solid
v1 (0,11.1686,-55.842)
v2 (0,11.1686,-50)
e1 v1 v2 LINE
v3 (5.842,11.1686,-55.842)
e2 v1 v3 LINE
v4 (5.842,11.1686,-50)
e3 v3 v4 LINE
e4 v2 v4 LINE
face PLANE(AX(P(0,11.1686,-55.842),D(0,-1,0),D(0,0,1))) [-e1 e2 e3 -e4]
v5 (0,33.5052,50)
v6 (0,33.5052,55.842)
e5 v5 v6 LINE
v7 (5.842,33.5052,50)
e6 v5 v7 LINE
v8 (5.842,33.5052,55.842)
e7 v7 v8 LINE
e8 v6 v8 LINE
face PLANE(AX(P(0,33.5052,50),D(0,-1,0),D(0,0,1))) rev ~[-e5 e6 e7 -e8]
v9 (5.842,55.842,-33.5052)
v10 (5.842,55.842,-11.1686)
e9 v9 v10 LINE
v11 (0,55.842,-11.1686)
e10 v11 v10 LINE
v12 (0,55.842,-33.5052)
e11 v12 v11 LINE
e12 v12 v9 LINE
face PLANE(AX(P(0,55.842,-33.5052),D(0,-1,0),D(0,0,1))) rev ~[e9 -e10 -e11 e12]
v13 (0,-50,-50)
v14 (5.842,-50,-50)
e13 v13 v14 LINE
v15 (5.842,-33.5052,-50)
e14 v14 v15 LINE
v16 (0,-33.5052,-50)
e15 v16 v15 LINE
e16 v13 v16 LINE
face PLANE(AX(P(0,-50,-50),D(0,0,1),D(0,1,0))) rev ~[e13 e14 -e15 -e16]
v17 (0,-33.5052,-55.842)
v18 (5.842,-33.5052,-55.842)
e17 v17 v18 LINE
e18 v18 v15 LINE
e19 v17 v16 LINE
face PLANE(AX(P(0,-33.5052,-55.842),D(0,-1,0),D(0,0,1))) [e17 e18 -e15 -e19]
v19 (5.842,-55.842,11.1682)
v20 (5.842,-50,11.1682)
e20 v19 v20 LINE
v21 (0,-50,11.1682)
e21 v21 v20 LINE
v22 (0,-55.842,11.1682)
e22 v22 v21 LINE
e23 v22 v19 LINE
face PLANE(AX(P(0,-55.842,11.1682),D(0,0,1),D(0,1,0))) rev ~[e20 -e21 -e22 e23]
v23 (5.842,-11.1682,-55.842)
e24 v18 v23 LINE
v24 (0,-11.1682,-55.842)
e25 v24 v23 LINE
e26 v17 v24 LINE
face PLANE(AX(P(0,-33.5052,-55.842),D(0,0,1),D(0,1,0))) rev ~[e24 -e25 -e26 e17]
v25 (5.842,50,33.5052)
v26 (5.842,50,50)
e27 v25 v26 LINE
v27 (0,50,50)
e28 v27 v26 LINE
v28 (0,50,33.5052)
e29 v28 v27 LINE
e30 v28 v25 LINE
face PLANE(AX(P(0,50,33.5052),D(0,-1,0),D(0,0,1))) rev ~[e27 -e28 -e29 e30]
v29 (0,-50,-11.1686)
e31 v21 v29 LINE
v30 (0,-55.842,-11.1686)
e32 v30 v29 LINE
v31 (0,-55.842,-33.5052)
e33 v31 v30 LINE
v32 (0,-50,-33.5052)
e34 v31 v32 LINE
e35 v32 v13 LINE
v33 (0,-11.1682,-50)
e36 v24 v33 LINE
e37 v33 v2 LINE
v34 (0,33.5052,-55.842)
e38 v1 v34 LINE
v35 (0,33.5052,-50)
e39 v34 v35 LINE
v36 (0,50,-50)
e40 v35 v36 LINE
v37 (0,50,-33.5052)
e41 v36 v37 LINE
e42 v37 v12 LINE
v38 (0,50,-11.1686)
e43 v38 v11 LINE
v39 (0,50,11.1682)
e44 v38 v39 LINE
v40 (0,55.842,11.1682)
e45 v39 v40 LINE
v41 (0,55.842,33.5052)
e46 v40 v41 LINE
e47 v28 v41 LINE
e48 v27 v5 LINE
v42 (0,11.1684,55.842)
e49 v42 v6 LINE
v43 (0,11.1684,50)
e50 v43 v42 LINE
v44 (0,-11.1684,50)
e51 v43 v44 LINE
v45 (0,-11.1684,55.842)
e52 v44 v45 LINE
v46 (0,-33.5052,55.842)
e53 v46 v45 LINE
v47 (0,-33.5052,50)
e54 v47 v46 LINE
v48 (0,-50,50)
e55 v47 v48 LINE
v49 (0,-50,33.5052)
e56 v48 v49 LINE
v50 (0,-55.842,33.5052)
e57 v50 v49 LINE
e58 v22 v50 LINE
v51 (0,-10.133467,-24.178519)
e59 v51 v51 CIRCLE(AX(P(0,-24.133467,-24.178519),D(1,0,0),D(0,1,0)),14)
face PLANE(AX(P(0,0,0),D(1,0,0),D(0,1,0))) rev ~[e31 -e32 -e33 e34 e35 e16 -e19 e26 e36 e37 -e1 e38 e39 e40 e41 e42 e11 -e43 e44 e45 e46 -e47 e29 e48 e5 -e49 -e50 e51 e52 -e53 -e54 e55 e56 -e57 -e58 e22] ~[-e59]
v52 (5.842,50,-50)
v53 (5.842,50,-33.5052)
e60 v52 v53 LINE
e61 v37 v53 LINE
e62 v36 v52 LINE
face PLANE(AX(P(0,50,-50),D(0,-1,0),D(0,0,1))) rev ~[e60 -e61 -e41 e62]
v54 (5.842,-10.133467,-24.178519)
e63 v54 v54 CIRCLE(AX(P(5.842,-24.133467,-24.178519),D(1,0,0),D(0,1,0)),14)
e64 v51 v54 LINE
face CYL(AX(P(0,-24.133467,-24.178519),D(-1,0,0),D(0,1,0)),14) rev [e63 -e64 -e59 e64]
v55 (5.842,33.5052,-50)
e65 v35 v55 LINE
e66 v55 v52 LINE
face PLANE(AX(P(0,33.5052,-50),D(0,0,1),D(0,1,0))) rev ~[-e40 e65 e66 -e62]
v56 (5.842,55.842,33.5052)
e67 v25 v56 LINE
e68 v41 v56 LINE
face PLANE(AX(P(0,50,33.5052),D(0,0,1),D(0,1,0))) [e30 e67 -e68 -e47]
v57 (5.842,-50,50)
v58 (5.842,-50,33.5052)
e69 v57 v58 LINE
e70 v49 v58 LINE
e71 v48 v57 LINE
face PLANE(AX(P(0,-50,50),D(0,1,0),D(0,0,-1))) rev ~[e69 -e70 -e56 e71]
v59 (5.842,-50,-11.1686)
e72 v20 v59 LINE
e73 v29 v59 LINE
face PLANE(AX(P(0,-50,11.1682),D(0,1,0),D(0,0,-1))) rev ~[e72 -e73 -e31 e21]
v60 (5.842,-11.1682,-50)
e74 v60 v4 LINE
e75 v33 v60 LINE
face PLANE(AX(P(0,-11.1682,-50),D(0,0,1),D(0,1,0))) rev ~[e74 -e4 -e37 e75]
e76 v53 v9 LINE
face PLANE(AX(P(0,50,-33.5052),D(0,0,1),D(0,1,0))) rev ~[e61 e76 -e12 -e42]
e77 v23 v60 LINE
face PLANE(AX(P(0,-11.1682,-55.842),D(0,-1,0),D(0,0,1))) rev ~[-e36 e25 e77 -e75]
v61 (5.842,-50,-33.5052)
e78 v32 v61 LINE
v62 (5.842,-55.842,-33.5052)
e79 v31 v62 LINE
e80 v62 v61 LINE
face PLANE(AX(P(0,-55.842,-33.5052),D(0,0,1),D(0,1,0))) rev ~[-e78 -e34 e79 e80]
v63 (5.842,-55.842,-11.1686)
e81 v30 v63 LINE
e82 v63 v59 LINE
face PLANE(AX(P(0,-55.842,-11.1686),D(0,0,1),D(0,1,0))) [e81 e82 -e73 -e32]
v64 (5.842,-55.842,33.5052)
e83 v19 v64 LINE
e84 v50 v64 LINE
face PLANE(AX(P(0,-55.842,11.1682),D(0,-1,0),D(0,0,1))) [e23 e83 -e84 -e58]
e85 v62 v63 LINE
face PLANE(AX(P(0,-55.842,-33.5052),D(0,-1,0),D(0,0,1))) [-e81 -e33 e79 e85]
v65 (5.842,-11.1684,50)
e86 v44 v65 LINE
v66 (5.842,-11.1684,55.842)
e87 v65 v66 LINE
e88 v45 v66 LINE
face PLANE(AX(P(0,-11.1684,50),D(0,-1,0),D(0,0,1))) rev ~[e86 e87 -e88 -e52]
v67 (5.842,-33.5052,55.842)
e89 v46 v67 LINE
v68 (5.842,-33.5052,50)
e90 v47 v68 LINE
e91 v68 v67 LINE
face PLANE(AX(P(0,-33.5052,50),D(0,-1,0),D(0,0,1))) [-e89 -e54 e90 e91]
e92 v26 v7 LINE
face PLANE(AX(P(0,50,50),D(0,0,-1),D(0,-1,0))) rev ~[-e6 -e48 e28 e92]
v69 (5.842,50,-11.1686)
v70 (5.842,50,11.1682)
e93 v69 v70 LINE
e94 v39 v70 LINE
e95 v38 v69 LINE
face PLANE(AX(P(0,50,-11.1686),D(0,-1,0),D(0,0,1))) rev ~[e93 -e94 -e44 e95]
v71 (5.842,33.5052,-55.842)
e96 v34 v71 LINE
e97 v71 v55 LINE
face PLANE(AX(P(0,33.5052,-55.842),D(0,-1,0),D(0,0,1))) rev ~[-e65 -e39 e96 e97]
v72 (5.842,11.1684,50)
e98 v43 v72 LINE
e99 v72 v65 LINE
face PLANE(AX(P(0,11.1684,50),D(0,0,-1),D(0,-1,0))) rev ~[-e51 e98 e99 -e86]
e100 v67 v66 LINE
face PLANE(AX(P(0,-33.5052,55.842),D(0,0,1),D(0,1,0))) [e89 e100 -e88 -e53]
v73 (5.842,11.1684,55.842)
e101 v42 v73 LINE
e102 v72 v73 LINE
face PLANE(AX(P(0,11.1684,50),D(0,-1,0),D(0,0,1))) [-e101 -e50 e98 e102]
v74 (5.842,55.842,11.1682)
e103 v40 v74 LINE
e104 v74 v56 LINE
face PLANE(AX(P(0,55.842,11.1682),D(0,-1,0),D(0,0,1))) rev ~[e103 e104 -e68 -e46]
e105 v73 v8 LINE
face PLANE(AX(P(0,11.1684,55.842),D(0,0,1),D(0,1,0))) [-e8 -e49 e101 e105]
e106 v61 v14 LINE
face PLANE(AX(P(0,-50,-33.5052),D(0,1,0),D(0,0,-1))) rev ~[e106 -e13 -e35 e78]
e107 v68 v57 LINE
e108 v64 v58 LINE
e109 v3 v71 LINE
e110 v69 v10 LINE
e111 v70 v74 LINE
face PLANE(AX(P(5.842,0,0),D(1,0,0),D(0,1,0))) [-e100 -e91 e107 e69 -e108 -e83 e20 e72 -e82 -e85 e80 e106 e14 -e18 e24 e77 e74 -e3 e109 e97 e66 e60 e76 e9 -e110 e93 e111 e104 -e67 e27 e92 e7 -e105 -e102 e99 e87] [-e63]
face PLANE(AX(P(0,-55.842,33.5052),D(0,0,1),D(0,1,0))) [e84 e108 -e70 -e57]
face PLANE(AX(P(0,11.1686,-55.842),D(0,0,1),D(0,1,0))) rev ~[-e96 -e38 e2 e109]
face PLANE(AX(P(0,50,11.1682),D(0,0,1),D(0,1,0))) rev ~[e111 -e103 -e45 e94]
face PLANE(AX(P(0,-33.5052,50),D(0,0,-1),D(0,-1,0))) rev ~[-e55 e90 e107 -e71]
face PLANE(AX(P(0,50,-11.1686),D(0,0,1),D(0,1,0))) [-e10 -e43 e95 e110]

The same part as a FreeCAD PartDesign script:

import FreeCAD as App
import Part
import Sketcher
Q = App.Units.Quantity

doc = App.newDocument("Part")
body = doc.addObject("PartDesign::Body", "Body")

# Sketch on YZ plane
sketch1 = body.newObject("Sketcher::SketchObject", "Sketch")
sketch1.AttachmentSupport = (doc.getObject("YZ_Plane"), [""])
sketch1.MapMode = "FlatFace"
sketch1.addGeometry([
    Part.LineSegment(App.Vector(-50, 50, 0), App.Vector(-50, 34, 0)),  # 0
    Part.LineSegment(App.Vector(-50, 34, 0), App.Vector(-56, 34, 0)),  # 1
    Part.LineSegment(App.Vector(-56, 34, 0), App.Vector(-56, 11, 0)),  # 2
    Part.LineSegment(App.Vector(-56, 11, 0), App.Vector(-50, 11, 0)),  # 3
    Part.LineSegment(App.Vector(-50, 11, 0), App.Vector(-50, -11, 0)),  # 4
    Part.LineSegment(App.Vector(-50, -11, 0), App.Vector(-56, -11, 0)),  # 5
    Part.LineSegment(App.Vector(-56, -11, 0), App.Vector(-56, -34, 0)),  # 6
    Part.LineSegment(App.Vector(-56, -34, 0), App.Vector(-50, -34, 0)),  # 7
    Part.LineSegment(App.Vector(-50, -34, 0), App.Vector(-50, -50, 0)),  # 8
    Part.LineSegment(App.Vector(-50, -50, 0), App.Vector(-34, -50, 0)),  # 9
    Part.LineSegment(App.Vector(-34, -50, 0), App.Vector(-34, -56, 0)),  # 10
    Part.LineSegment(App.Vector(-34, -56, 0), App.Vector(-11, -56, 0)),  # 11
    Part.LineSegment(App.Vector(-11, -56, 0), App.Vector(-11, -50, 0)),  # 12
    Part.LineSegment(App.Vector(-11, -50, 0), App.Vector(11, -50, 0)),  # 13
    Part.LineSegment(App.Vector(11, -50, 0), App.Vector(11, -56, 0)),  # 14
    Part.LineSegment(App.Vector(11, -56, 0), App.Vector(34, -56, 0)),  # 15
    Part.LineSegment(App.Vector(34, -56, 0), App.Vector(34, -50, 0)),  # 16
    Part.LineSegment(App.Vector(34, -50, 0), App.Vector(50, -50, 0)),  # 17
    Part.LineSegment(App.Vector(50, -50, 0), App.Vector(50, -34, 0)),  # 18
    Part.LineSegment(App.Vector(50, -34, 0), App.Vector(56, -34, 0)),  # 19
    Part.LineSegment(App.Vector(56, -34, 0), App.Vector(56, -11, 0)),  # 20
    Part.LineSegment(App.Vector(56, -11, 0), App.Vector(50, -11, 0)),  # 21
    Part.LineSegment(App.Vector(50, -11, 0), App.Vector(50, 11, 0)),  # 22
    Part.LineSegment(App.Vector(50, 11, 0), App.Vector(56, 11, 0)),  # 23
    Part.LineSegment(App.Vector(56, 11, 0), App.Vector(56, 34, 0)),  # 24
    Part.LineSegment(App.Vector(56, 34, 0), App.Vector(50, 34, 0)),  # 25
    Part.LineSegment(App.Vector(50, 34, 0), App.Vector(50, 50, 0)),  # 26
    Part.LineSegment(App.Vector(50, 50, 0), App.Vector(34, 50, 0)),  # 27
    Part.LineSegment(App.Vector(34, 50, 0), App.Vector(34, 56, 0)),  # 28
    Part.LineSegment(App.Vector(34, 56, 0), App.Vector(11, 56, 0)),  # 29
    Part.LineSegment(App.Vector(11, 56, 0), App.Vector(11, 50, 0)),  # 30
    Part.LineSegment(App.Vector(11, 50, 0), App.Vector(-11, 50, 0)),  # 31
    Part.LineSegment(App.Vector(-11, 50, 0), App.Vector(-11, 56, 0)),  # 32
    Part.LineSegment(App.Vector(-11, 56, 0), App.Vector(-34, 56, 0)),  # 33
    Part.LineSegment(App.Vector(-34, 56, 0), App.Vector(-34, 50, 0)),  # 34
    Part.LineSegment(App.Vector(-34, 50, 0), App.Vector(-50, 50, 0)),  # 35
    Part.Circle(App.Vector(-24, -24, 0), App.Vector(0, 0, 1), 14),  # 36
], False)
sketch1.addConstraint([
    Sketcher.Constraint("Coincident", 0, 2, 1, 1),
    Sketcher.Constraint("Coincident", 1, 2, 2, 1),
    Sketcher.Constraint("Coincident", 2, 2, 3, 1),
    Sketcher.Constraint("Coincident", 3, 2, 4, 1),
    Sketcher.Constraint("Coincident", 4, 2, 5, 1),
    Sketcher.Constraint("Coincident", 5, 2, 6, 1),
    Sketcher.Constraint("Coincident", 6, 2, 7, 1),
    Sketcher.Constraint("Coincident", 7, 2, 8, 1),
    Sketcher.Constraint("Coincident", 8, 2, 9, 1),
    Sketcher.Constraint("Coincident", 9, 2, 10, 1),
    Sketcher.Constraint("Coincident", 10, 2, 11, 1),
    Sketcher.Constraint("Coincident", 11, 2, 12, 1),
    Sketcher.Constraint("Coincident", 12, 2, 13, 1),
    Sketcher.Constraint("Coincident", 13, 2, 14, 1),
    Sketcher.Constraint("Coincident", 14, 2, 15, 1),
    Sketcher.Constraint("Coincident", 15, 2, 16, 1),
    Sketcher.Constraint("Coincident", 16, 2, 17, 1),
    Sketcher.Constraint("Coincident", 17, 2, 18, 1),
    Sketcher.Constraint("Coincident", 18, 2, 19, 1),
    Sketcher.Constraint("Coincident", 19, 2, 20, 1),
    Sketcher.Constraint("Coincident", 20, 2, 21, 1),
    Sketcher.Constraint("Coincident", 21, 2, 22, 1),
    Sketcher.Constraint("Coincident", 22, 2, 23, 1),
    Sketcher.Constraint("Coincident", 23, 2, 24, 1),
    Sketcher.Constraint("Coincident", 24, 2, 25, 1),
    Sketcher.Constraint("Coincident", 25, 2, 26, 1),
    Sketcher.Constraint("Coincident", 26, 2, 27, 1),
    Sketcher.Constraint("Coincident", 27, 2, 28, 1),
    Sketcher.Constraint("Coincident", 28, 2, 29, 1),
    Sketcher.Constraint("Coincident", 29, 2, 30, 1),
    Sketcher.Constraint("Coincident", 30, 2, 31, 1),
    Sketcher.Constraint("Coincident", 31, 2, 32, 1),
    Sketcher.Constraint("Coincident", 32, 2, 33, 1),
    Sketcher.Constraint("Coincident", 33, 2, 34, 1),
    Sketcher.Constraint("Coincident", 34, 2, 35, 1),
    Sketcher.Constraint("Coincident", 35, 2, 0, 1),
    Sketcher.Constraint("Vertical", 0),
    Sketcher.Constraint("Horizontal", 1),
    Sketcher.Constraint("Vertical", 2),
    Sketcher.Constraint("Horizontal", 3),
    Sketcher.Constraint("Vertical", 4),
    Sketcher.Constraint("Horizontal", 5),
    Sketcher.Constraint("Vertical", 6),
    Sketcher.Constraint("Horizontal", 7),
    Sketcher.Constraint("Vertical", 8),
    Sketcher.Constraint("Horizontal", 9),
    Sketcher.Constraint("Vertical", 10),
    Sketcher.Constraint("Horizontal", 11),
    Sketcher.Constraint("Vertical", 12),
    Sketcher.Constraint("Horizontal", 13),
    Sketcher.Constraint("Vertical", 14),
    Sketcher.Constraint("Horizontal", 15),
    Sketcher.Constraint("Vertical", 16),
    Sketcher.Constraint("Horizontal", 17),
    Sketcher.Constraint("Vertical", 18),
    Sketcher.Constraint("Horizontal", 19),
    Sketcher.Constraint("Vertical", 20),
    Sketcher.Constraint("Horizontal", 21),
    Sketcher.Constraint("Vertical", 22),
    Sketcher.Constraint("Horizontal", 23),
    Sketcher.Constraint("Vertical", 24),
    Sketcher.Constraint("Horizontal", 25),
    Sketcher.Constraint("Vertical", 26),
    Sketcher.Constraint("Horizontal", 27),
    Sketcher.Constraint("Vertical", 28),
    Sketcher.Constraint("Horizontal", 29),
    Sketcher.Constraint("Vertical", 30),
    Sketcher.Constraint("Horizontal", 31),
    Sketcher.Constraint("Vertical", 32),
    Sketcher.Constraint("Horizontal", 33),
    Sketcher.Constraint("Vertical", 34),
    Sketcher.Constraint("Horizontal", 35),
    Sketcher.Constraint("Symmetric", 0, 2, 18, 2, -1, 1),
    Sketcher.Constraint("Symmetric", 6, 2, 24, 2, -1, 1),
    Sketcher.Constraint("Symmetric", 8, 2, 26, 2, -1, 1),
    Sketcher.Constraint("Symmetric", 10, 2, 28, 2, -1, 1),
    Sketcher.Constraint("Symmetric", 15, 2, 33, 2, -1, 1),
    Sketcher.Constraint("Symmetric", 10, 2, 15, 2, -2),
    Sketcher.Constraint("Symmetric", 8, 2, 17, 2, -2),
    Sketcher.Constraint("Symmetric", 6, 2, 19, 2, -2),
    Sketcher.Constraint("Symmetric", 4, 2, 21, 2, -2),
    Sketcher.Constraint("Symmetric", 2, 2, 23, 2, -2),
    Sketcher.Constraint("Horizontal", 9, 2, 12, 2),
    Sketcher.Constraint("Horizontal", 27, 2, 30, 2),
    Sketcher.Constraint("Horizontal", 31, 2, 34, 2),
    Sketcher.Constraint("Vertical", 0, 2, 3, 2),
    Sketcher.Constraint("Equal", 13, 29),
    Sketcher.Constraint("Equal", 29, 31),
    Sketcher.Constraint("Equal", 31, 33),
    Sketcher.Constraint("Equal", 35, 0),
    Sketcher.Constraint("Equal", 11, 2),
    Sketcher.Constraint("Equal", 33, 4),
    Sketcher.Constraint("Equal", 15, 6),
    Sketcher.Constraint("Equal", 25, 10),
    Sketcher.Constraint("Diameter", 36, Q("28 mm")),
    Sketcher.Constraint("DistanceX", 0, 2, -1, 1, Q("50 mm")),
    Sketcher.Constraint("DistanceX", 1, 2, 1, 1, Q("5.842 mm")),
    Sketcher.Constraint("DistanceX", 11, 1, 11, 2, Q("22.337 mm")),
    Sketcher.Constraint("DistanceX", 9, 1, 9, 2, Q("16.4948 mm")),
    Sketcher.Constraint("DistanceY", 36, 3, -1, 1, Q("24.178519 mm")),
    Sketcher.Constraint("DistanceX", 36, 3, -1, 1, Q("24.133467 mm")),
])
pad1 = body.newObject("PartDesign::Pad", "Pad")
pad1.Profile = sketch1
pad1.Length = 5.842

doc.recompute()
